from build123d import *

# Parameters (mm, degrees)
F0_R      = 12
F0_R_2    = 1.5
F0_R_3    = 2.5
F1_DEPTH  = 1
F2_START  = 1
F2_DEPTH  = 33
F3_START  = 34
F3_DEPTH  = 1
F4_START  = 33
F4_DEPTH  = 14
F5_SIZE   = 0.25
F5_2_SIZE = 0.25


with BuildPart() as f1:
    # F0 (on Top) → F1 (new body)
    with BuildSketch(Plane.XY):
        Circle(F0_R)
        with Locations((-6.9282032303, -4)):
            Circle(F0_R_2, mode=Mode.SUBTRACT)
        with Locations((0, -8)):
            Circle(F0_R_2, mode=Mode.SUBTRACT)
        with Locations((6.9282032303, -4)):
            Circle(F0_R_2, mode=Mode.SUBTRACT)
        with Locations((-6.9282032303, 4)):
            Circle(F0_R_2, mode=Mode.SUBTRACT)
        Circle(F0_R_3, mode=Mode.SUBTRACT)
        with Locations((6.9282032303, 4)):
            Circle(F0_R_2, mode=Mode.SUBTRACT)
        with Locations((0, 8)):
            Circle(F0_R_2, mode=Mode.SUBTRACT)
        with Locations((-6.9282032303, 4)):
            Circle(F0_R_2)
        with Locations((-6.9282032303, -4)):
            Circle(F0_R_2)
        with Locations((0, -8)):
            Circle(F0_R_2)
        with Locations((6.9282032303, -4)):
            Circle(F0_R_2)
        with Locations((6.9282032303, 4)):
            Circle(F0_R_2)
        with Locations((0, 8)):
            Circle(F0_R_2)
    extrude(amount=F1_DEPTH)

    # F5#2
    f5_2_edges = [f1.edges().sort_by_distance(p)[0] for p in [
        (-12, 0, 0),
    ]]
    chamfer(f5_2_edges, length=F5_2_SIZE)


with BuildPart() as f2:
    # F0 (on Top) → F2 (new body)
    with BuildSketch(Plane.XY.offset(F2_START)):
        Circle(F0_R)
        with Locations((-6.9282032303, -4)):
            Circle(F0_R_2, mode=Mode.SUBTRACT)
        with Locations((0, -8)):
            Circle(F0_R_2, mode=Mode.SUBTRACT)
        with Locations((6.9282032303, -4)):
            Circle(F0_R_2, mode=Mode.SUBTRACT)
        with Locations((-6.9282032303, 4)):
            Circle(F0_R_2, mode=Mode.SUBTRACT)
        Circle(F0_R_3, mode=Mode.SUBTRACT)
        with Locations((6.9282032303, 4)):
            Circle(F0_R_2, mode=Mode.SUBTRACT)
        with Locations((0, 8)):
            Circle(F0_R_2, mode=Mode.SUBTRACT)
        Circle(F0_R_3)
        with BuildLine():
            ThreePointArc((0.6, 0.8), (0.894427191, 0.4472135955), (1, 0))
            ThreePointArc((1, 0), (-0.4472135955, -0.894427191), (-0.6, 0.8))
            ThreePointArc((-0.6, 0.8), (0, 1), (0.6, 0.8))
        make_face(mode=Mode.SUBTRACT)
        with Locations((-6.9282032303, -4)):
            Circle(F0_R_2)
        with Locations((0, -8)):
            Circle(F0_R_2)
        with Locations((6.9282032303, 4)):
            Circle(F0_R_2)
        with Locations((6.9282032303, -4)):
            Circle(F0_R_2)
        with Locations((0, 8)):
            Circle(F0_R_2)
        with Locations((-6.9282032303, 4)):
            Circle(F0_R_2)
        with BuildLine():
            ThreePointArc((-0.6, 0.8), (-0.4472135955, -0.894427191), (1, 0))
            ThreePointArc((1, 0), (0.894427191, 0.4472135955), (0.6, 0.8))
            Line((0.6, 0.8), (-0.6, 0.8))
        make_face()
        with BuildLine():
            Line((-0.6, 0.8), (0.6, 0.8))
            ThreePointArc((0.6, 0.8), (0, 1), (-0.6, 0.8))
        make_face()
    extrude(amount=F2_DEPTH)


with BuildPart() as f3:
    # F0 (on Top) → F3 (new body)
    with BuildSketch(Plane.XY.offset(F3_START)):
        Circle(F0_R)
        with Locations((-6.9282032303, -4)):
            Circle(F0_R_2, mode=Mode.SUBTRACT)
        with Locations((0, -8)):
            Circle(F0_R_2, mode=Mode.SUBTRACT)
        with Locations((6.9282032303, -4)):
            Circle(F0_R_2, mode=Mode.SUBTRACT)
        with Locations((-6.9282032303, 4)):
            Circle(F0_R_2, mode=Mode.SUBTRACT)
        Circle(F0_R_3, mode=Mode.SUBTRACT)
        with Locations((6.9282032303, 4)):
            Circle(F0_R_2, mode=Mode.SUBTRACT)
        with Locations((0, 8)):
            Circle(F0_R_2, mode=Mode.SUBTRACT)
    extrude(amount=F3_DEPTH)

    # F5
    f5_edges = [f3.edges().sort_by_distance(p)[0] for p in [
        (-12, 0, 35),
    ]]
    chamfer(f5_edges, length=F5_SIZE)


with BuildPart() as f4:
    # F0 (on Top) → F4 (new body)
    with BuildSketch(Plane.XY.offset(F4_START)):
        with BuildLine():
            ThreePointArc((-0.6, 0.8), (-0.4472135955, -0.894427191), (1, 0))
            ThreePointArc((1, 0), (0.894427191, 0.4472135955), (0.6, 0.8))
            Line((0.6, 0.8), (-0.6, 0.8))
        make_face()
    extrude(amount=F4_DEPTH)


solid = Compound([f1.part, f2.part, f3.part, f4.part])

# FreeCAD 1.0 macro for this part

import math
import FreeCAD as App
import Part
import Sketcher
from FreeCAD import Vector


def edges_at(feature, points):
    """Names of the edges that pass closest to the given points."""
    edges = feature.Shape.Edges
    near = lambda p: min(range(len(edges)), key=lambda i: edges[i].distToShape(Part.Vertex(*p))[0])
    return sorted({f"Edge{near(p) + 1}" for p in points})

doc = App.newDocument("Part")
params = doc.addObject("Spreadsheet::Sheet", "Params")
for row, (alias, value) in enumerate([
    ("sketch1_diameter", "24 mm"),
    ("sketch1_diameter2", "5 mm"),
    ("pad1_length", "1 mm"),
    ("chamfer_size", "0.25 mm"),
    ("sketch2_diameter", "24 mm"),
    ("pad2_length", "33 mm"),
    ("sketch3_diameter", "24 mm"),
    ("sketch3_diameter2", "3 mm"),
    ("sketch3_diameter3", "5 mm"),
    ("pad3_length", "1 mm"),
    ("chamfer2_size", "0.25 mm"),
    ("sketch4_radius", "1 mm"),
    ("sketch4_width", "1.2 mm"),
    ("pad4_length", "14 mm"),
], start=1):
    params.set(f"A{row}", alias)
    params.set(f"B{row}", "=" + value)
    params.setAlias(f"B{row}", alias)

body = doc.addObject("PartDesign::Body", "Body")

# Sketch on XY plane
sketch1 = doc.addObject("Sketcher::SketchObject", "Sketch")
body.addObject(sketch1)
sketch1.AttachmentSupport = (doc.XY_Plane, [""])
sketch1.MapMode = "FlatFace"
sketch1.addGeometry(Part.Circle(Vector(0, 0, 0), Vector(0, 0, 1), 12), False)
sketch1.addGeometry(Part.Circle(Vector(0, 0, 0), Vector(0, 0, 1), 2.5), False)
sketch1.addConstraint(Sketcher.Constraint("Coincident", 0, 3, -1, 1))
sketch1.addConstraint(Sketcher.Constraint("Coincident", 1, 3, -1, 1))
sketch1.addConstraint(Sketcher.Constraint("Diameter", 0, 24.0))
sketch1.addConstraint(Sketcher.Constraint("Diameter", 1, 5.0))
sketch1.setExpression("Constraints[2]", "Params.sketch1_diameter")
sketch1.setExpression("Constraints[3]", "Params.sketch1_diameter2")
pad1 = doc.addObject("PartDesign::Pad", "Pad")
body.addObject(pad1)
pad1.Profile = sketch1
pad1.setExpression("Length", "Params.pad1_length")
doc.recompute()

chamfer = doc.addObject("PartDesign::Chamfer", "Chamfer")
body.addObject(chamfer)
chamfer.Base = (pad1, edges_at(pad1, [(-12, 0, 0)]))
chamfer.setExpression("Size", "Params.chamfer_size")
body2 = doc.addObject("PartDesign::Body", "Body001")

# Sketch on XY plane
sketch2 = doc.addObject("Sketcher::SketchObject", "Sketch001")
body2.addObject(sketch2)
sketch2.AttachmentSupport = (doc.getObject("XY_Plane001"), [""])
sketch2.MapMode = "FlatFace"
sketch2.AttachmentOffset = App.Placement(Vector(0, 0, 1), App.Rotation())
sketch2.addGeometry(Part.Circle(Vector(0, 0, 0), Vector(0, 0, 1), 12), False)
sketch2.addConstraint(Sketcher.Constraint("Coincident", 0, 3, -1, 1))
sketch2.addConstraint(Sketcher.Constraint("Diameter", 0, 24.0))
sketch2.setExpression("Constraints[1]", "Params.sketch2_diameter")
pad2 = doc.addObject("PartDesign::Pad", "Pad001")
body2.addObject(pad2)
pad2.Profile = sketch2
pad2.setExpression("Length", "Params.pad2_length")
body3 = doc.addObject("PartDesign::Body", "Body002")

# Sketch on XY plane
sketch3 = doc.addObject("Sketcher::SketchObject", "Sketch002")
body3.addObject(sketch3)
sketch3.AttachmentSupport = (doc.getObject("XY_Plane002"), [""])
sketch3.MapMode = "FlatFace"
sketch3.AttachmentOffset = App.Placement(Vector(0, 0, 34), App.Rotation())
sketch3.addGeometry(Part.Circle(Vector(0, 0, 0), Vector(0, 0, 1), 12), False)
sketch3.addGeometry(Part.Circle(Vector(-6.9, -4, 0), Vector(0, 0, 1), 1.5), False)
sketch3.addGeometry(Part.Circle(Vector(0, -8, 0), Vector(0, 0, 1), 1.5), False)
sketch3.addGeometry(Part.Circle(Vector(6.9, -4, 0), Vector(0, 0, 1), 1.5), False)
sketch3.addGeometry(Part.Circle(Vector(-6.9, 4, 0), Vector(0, 0, 1), 1.5), False)
sketch3.addGeometry(Part.Circle(Vector(0, 0, 0), Vector(0, 0, 1), 2.5), False)
sketch3.addGeometry(Part.Circle(Vector(6.9, 4, 0), Vector(0, 0, 1), 1.5), False)
sketch3.addGeometry(Part.Circle(Vector(0, 8, 0), Vector(0, 0, 1), 1.5), False)
sketch3.addConstraint(Sketcher.Constraint("Coincident", 0, 3, -1, 1))
sketch3.addConstraint(Sketcher.Constraint("Coincident", 5, 3, -1, 1))
sketch3.addConstraint(Sketcher.Constraint("Equal", 1, 2))
sketch3.addConstraint(Sketcher.Constraint("Equal", 2, 3))
sketch3.addConstraint(Sketcher.Constraint("Equal", 3, 4))
sketch3.addConstraint(Sketcher.Constraint("Equal", 4, 6))
sketch3.addConstraint(Sketcher.Constraint("Equal", 6, 7))
sketch3.addConstraint(Sketcher.Constraint("Symmetric", 3, 3, 4, 3, -1, 1))
sketch3.addConstraint(Sketcher.Constraint("Symmetric", 1, 3, 6, 3, -1, 1))
sketch3.addConstraint(Sketcher.Constraint("Symmetric", 2, 3, 7, 3, -1, 1))
sketch3.addConstraint(Sketcher.Constraint("Symmetric", 1, 3, 3, 3, -2))
sketch3.addConstraint(Sketcher.Constraint("PointOnObject", 2, 3, -2))
sketch3.addConstraint(Sketcher.Constraint("Diameter", 0, 24.0))
sketch3.addConstraint(Sketcher.Constraint("Diameter", 1, 3.0))
sketch3.addConstraint(Sketcher.Constraint("Diameter", 5, 5.0))
sketch3.addConstraint(Sketcher.Constraint("DistanceY", 1, 3, -1, 1, 4.0))
sketch3.addConstraint(Sketcher.Constraint("DistanceY", 2, 3, -1, 1, 8.0))
sketch3.addConstraint(Sketcher.Constraint("DistanceX", 1, 3, -1, 1, 6.928203))
sketch3.setExpression("Constraints[12]", "Params.sketch3_diameter")
sketch3.setExpression("Constraints[13]", "Params.sketch3_diameter2")
sketch3.setExpression("Constraints[14]", "Params.sketch3_diameter3")
pad3 = doc.addObject("PartDesign::Pad", "Pad002")
body3.addObject(pad3)
pad3.Profile = sketch3
pad3.setExpression("Length", "Params.pad3_length")
doc.recompute()

chamfer2 = doc.addObject("PartDesign::Chamfer", "Chamfer001")
body3.addObject(chamfer2)
chamfer2.Base = (pad3, edges_at(pad3, [(-12, 0, 35)]))
chamfer2.setExpression("Size", "Params.chamfer2_size")
body4 = doc.addObject("PartDesign::Body", "Body003")

# Sketch on XY plane
sketch4 = doc.addObject("Sketcher::SketchObject", "Sketch003")
body4.addObject(sketch4)
sketch4.AttachmentSupport = (doc.getObject("XY_Plane003"), [""])
sketch4.MapMode = "FlatFace"
sketch4.AttachmentOffset = App.Placement(Vector(0, 0, 33), App.Rotation())
sketch4.addGeometry(Part.ArcOfCircle(Part.Circle(Vector(0, 0, 0), Vector(0, 0, 1), 1), math.radians(127), math.radians(413)), False)
sketch4.addGeometry(Part.LineSegment(Vector(0.6, 0.8, 0), Vector(-0.6, 0.8, 0)), False)
sketch4.addConstraint(Sketcher.Constraint("Coincident", 0, 1, 1, 2))
sketch4.addConstraint(Sketcher.Constraint("Coincident", 1, 1, 0, 2))
sketch4.addConstraint(Sketcher.Constraint("Horizontal", 1))
sketch4.addConstraint(Sketcher.Constraint("Coincident", 0, 3, -1, 1))
sketch4.addConstraint(Sketcher.Constraint("Radius", 0, 1.0))
sketch4.addConstraint(Sketcher.Constraint("DistanceX", 1, 2, 1, 1, 1.2))
sketch4.setExpression("Constraints[4]", "Params.sketch4_radius")
sketch4.setExpression("Constraints[5]", "Params.sketch4_width")
pad4 = doc.addObject("PartDesign::Pad", "Pad003")
body4.addObject(pad4)
pad4.Profile = sketch4
pad4.setExpression("Length", "Params.pad4_length")

doc.recompute()
